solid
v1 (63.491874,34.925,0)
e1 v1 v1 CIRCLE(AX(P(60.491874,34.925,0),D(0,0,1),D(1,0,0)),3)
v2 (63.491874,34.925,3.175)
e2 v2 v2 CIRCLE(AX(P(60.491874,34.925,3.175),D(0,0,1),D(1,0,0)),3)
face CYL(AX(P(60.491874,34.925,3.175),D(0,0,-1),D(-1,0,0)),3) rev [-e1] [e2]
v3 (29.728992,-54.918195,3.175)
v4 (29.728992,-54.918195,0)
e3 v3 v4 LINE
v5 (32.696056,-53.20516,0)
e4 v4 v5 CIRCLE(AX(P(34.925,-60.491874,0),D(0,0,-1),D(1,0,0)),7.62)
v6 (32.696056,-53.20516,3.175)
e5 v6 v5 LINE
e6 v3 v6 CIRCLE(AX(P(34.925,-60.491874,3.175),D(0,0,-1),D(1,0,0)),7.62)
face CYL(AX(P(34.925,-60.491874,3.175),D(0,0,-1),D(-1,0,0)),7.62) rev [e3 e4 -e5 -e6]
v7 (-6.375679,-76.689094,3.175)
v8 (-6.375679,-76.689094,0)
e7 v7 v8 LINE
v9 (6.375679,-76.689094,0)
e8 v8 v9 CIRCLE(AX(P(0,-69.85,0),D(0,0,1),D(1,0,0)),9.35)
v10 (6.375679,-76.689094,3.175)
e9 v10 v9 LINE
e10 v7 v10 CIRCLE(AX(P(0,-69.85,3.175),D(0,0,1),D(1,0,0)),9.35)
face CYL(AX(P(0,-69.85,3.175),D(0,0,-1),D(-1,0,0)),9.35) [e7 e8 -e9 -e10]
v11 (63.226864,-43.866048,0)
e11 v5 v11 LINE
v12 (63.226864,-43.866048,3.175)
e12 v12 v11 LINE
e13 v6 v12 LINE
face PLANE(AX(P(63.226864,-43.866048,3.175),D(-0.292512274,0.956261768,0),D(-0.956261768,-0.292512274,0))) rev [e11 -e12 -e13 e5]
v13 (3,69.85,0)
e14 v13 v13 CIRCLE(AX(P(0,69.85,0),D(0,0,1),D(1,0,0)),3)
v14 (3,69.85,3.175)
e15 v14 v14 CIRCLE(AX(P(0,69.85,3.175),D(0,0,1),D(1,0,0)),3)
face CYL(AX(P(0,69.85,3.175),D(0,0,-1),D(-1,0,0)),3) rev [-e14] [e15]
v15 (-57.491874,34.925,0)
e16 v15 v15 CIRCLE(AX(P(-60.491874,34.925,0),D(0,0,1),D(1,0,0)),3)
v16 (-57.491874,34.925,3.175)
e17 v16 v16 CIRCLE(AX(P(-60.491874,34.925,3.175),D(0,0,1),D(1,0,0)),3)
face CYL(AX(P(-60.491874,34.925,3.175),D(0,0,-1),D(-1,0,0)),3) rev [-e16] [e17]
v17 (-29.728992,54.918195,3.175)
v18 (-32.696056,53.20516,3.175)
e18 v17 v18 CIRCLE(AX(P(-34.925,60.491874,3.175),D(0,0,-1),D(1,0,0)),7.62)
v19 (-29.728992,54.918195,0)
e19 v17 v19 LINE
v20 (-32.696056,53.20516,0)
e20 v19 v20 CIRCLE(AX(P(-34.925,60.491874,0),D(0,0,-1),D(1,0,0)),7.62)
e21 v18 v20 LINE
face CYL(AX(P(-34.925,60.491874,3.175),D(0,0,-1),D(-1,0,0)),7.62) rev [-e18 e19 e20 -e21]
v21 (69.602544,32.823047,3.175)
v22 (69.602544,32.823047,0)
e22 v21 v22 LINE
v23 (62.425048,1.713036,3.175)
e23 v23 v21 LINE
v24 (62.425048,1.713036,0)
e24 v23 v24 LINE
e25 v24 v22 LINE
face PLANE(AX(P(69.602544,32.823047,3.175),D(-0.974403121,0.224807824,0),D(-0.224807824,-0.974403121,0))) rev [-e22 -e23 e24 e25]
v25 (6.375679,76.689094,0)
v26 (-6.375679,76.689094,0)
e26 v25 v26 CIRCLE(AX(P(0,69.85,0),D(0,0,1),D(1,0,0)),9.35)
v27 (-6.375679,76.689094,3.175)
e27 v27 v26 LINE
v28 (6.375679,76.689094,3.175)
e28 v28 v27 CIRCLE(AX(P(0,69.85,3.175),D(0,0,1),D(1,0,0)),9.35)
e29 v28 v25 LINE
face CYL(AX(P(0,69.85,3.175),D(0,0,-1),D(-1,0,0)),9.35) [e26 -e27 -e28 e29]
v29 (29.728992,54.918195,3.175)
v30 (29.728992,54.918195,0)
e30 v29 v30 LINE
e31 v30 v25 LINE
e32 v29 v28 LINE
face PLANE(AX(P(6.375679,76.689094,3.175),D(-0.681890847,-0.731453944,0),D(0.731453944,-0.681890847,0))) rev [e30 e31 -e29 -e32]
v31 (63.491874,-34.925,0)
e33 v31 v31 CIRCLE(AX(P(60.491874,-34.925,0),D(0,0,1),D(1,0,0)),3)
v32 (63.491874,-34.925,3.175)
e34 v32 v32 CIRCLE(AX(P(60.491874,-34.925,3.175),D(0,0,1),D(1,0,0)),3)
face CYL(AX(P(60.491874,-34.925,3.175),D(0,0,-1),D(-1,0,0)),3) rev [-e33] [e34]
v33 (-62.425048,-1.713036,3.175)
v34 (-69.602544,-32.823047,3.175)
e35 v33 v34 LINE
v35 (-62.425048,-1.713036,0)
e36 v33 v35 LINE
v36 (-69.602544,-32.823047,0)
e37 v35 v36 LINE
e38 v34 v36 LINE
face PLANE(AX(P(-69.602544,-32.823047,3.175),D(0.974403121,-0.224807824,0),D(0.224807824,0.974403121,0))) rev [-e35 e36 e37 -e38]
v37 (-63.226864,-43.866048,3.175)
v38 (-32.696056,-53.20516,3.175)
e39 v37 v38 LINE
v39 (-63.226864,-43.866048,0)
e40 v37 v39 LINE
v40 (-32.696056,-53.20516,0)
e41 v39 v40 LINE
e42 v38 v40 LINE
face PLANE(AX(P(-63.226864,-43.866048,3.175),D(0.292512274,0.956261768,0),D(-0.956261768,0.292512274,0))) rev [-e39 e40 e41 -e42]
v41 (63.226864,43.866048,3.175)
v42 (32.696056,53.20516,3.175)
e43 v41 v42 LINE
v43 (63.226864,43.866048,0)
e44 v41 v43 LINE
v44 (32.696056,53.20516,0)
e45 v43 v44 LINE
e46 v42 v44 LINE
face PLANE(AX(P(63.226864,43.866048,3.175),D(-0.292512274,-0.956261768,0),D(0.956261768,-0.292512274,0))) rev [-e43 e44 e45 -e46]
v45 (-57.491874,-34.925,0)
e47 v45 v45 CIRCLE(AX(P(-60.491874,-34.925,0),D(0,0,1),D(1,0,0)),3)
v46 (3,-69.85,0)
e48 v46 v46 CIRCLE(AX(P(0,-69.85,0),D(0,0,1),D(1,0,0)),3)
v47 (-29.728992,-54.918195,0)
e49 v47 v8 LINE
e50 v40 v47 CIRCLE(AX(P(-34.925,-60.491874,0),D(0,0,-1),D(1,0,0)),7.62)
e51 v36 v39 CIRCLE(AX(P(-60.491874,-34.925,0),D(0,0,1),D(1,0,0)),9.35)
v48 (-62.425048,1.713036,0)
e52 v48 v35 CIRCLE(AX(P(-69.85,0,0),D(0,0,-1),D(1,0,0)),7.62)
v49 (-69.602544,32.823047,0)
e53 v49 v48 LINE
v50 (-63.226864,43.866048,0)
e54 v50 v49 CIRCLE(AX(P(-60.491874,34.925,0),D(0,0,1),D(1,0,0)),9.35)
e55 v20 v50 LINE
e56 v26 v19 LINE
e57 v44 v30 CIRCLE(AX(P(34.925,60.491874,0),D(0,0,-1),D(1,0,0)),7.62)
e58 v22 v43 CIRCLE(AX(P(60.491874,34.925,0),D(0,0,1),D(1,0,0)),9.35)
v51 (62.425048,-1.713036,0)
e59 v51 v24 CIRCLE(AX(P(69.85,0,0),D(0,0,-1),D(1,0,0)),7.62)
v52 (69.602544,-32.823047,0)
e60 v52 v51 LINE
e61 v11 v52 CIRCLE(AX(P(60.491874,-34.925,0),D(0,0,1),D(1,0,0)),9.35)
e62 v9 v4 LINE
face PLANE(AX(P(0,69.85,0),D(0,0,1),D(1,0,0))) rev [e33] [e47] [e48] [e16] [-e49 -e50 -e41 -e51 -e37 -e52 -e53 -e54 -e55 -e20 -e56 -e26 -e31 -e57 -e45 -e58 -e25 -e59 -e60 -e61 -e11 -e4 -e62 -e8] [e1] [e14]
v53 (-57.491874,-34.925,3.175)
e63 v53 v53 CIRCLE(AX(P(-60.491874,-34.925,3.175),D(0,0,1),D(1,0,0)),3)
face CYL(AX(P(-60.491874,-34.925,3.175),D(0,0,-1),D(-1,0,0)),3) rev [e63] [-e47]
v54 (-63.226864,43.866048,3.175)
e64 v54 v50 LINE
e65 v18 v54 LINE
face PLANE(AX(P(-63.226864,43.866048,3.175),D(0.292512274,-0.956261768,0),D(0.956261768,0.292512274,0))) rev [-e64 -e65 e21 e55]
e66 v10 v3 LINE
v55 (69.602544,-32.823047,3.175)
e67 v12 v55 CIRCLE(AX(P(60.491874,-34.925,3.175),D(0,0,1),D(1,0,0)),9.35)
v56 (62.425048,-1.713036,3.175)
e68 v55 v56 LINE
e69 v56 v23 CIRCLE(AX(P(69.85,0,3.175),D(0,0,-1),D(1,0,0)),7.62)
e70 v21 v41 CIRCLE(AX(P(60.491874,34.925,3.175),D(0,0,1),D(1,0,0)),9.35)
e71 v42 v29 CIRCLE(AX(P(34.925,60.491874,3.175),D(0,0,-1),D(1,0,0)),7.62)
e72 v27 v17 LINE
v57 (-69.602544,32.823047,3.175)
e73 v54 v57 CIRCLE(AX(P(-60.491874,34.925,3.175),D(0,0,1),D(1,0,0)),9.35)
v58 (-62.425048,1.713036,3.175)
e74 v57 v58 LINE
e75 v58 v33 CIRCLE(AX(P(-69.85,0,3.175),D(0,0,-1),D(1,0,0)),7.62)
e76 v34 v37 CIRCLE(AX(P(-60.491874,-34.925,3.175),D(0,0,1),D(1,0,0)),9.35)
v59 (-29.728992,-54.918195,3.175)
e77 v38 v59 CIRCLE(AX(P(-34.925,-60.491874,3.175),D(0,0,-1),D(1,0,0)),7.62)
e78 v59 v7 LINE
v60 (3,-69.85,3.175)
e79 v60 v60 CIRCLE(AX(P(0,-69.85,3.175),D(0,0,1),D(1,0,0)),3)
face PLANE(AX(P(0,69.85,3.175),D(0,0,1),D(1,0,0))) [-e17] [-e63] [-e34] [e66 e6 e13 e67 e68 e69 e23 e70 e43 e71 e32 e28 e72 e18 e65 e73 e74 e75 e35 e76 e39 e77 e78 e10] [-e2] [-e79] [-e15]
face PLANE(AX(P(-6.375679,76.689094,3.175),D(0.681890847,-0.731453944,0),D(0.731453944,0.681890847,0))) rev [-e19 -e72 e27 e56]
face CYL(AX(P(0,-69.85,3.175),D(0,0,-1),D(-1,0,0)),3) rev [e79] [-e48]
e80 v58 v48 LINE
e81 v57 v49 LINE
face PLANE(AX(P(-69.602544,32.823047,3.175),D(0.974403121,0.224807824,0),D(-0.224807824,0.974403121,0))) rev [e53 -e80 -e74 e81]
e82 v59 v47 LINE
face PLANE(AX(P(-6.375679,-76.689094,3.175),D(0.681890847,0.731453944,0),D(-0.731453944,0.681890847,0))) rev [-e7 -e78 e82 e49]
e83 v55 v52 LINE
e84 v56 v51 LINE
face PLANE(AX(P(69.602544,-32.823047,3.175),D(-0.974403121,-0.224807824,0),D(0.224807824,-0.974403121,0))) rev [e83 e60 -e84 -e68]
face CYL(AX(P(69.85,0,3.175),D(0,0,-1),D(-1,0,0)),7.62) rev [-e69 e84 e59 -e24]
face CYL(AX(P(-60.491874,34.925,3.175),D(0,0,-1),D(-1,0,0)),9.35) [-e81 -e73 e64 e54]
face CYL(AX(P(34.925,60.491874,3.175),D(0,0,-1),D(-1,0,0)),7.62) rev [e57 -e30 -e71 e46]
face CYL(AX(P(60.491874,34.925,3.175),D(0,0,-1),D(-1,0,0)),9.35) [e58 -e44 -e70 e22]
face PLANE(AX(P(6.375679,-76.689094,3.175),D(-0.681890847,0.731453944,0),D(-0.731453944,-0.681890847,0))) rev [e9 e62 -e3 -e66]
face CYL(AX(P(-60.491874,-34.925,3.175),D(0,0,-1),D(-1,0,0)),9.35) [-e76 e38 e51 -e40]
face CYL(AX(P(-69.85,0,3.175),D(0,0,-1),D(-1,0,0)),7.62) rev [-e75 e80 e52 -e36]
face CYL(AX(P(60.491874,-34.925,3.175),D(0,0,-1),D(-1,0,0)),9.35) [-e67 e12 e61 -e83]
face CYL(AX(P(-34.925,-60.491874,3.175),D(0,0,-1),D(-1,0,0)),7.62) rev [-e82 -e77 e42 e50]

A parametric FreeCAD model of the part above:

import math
import FreeCAD as App
import Part
import Sketcher
from FreeCAD import Vector
Q = App.Units.Quantity

doc = App.newDocument("Part")
params = doc.addObject("Spreadsheet::Sheet", "Params")
for row, (alias, value) in enumerate([
    ("sketch1_diameter", "6 mm"),
    ("sketch1_radius", "9.35 mm"),
    ("sketch1_radius2", "7.62 mm"),
    ("pad1_length", "3.175 mm"),
], start=1):
    params.set(f"A{row}", alias)
    params.set(f"B{row}", "=" + value)
    params.setAlias(f"B{row}", alias)

body = doc.addObject("PartDesign::Body", "Body")

# Sketch on XY plane
sketch1 = doc.addObject("Sketcher::SketchObject", "Sketch")
body.addObject(sketch1)
sketch1.AttachmentSupport = (doc.XY_Plane, [""])
sketch1.MapMode = "FlatFace"
sketch1.addGeometry(Part.LineSegment(Vector(29.7, 54.9, 0), Vector(6.4, 76.7, 0)), False)
sketch1.addGeometry(Part.ArcOfCircle(Part.Circle(Vector(0, 69.8, 0), Vector(0, 0, 1), 9.4), math.radians(47), math.radians(133)), False)
sketch1.addGeometry(Part.LineSegment(Vector(-6.4, 76.7, 0), Vector(-29.7, 54.9, 0)), False)
sketch1.addGeometry(Part.ArcOfCircle(Part.Circle(Vector(-34.9, 60.5, 0), Vector(0, 0, 1), 7.6), math.radians(-73), math.radians(-47)), False)
sketch1.addGeometry(Part.LineSegment(Vector(-32.7, 53.2, 0), Vector(-63.2, 43.9, 0)), False)
sketch1.addGeometry(Part.ArcOfCircle(Part.Circle(Vector(-60.5, 34.9, 0), Vector(0, 0, 1), 9.3), math.radians(107), math.radians(193)), False)
sketch1.addGeometry(Part.LineSegment(Vector(-69.6, 32.8, 0), Vector(-62.4, 1.7, 0)), False)
sketch1.addGeometry(Part.ArcOfCircle(Part.Circle(Vector(-69.9, 0, 0), Vector(0, 0, 1), 7.6), math.radians(-13), math.radians(13)), False)
sketch1.addGeometry(Part.LineSegment(Vector(-62.4, -1.7, 0), Vector(-69.6, -32.8, 0)), False)
sketch1.addGeometry(Part.ArcOfCircle(Part.Circle(Vector(-60.5, -34.9, 0), Vector(0, 0, 1), 9.3), math.radians(167), math.radians(253)), False)
sketch1.addGeometry(Part.LineSegment(Vector(-63.2, -43.9, 0), Vector(-32.7, -53.2, 0)), False)
sketch1.addGeometry(Part.ArcOfCircle(Part.Circle(Vector(-34.9, -60.5, 0), Vector(0, 0, 1), 7.6), math.radians(47), math.radians(73)), False)
sketch1.addGeometry(Part.LineSegment(Vector(-29.7, -54.9, 0), Vector(-6.4, -76.7, 0)), False)
sketch1.addGeometry(Part.ArcOfCircle(Part.Circle(Vector(0, -69.8, 0), Vector(0, 0, 1), 9.4), math.radians(-133), math.radians(-47)), False)
sketch1.addGeometry(Part.LineSegment(Vector(6.4, -76.7, 0), Vector(29.7, -54.9, 0)), False)
sketch1.addGeometry(Part.ArcOfCircle(Part.Circle(Vector(34.9, -60.5, 0), Vector(0, 0, 1), 7.6), math.radians(107), math.radians(133)), False)
sketch1.addGeometry(Part.LineSegment(Vector(32.7, -53.2, 0), Vector(63.2, -43.9, 0)), False)
sketch1.addGeometry(Part.ArcOfCircle(Part.Circle(Vector(60.5, -34.9, 0), Vector(0, 0, 1), 9.3), math.radians(-73), math.radians(13)), False)
sketch1.addGeometry(Part.LineSegment(Vector(69.6, -32.8, 0), Vector(62.4, -1.7, 0)), False)
sketch1.addGeometry(Part.ArcOfCircle(Part.Circle(Vector(69.9, 0, 0), Vector(0, 0, 1), 7.6), math.radians(167), math.radians(193)), False)
sketch1.addGeometry(Part.LineSegment(Vector(62.4, 1.7, 0), Vector(69.6, 32.8, 0)), False)
sketch1.addGeometry(Part.ArcOfCircle(Part.Circle(Vector(60.5, 34.9, 0), Vector(0, 0, 1), 9.3), math.radians(-13), math.radians(73)), False)
sketch1.addGeometry(Part.LineSegment(Vector(63.2, 43.9, 0), Vector(32.7, 53.2, 0)), False)
sketch1.addGeometry(Part.ArcOfCircle(Part.Circle(Vector(34.9, 60.5, 0), Vector(0, 0, 1), 7.6), math.radians(-133), math.radians(-107)), False)
sketch1.addGeometry(Part.Circle(Vector(60.5, -34.9, 0), Vector(0, 0, 1), 3), False)
sketch1.addGeometry(Part.Circle(Vector(0, -69.8, 0), Vector(0, 0, 1), 3), False)
sketch1.addGeometry(Part.Circle(Vector(-60.5, -34.9, 0), Vector(0, 0, 1), 3), False)
sketch1.addGeometry(Part.Circle(Vector(60.5, 34.9, 0), Vector(0, 0, 1), 3), False)
sketch1.addGeometry(Part.Circle(Vector(-60.5, 34.9, 0), Vector(0, 0, 1), 3), False)
sketch1.addGeometry(Part.Circle(Vector(0, 69.8, 0), Vector(0, 0, 1), 3), False)
sketch1.addConstraint(Sketcher.Constraint("Tangent", 0, 2, 1, 1))
sketch1.addConstraint(Sketcher.Constraint("Tangent", 1, 2, 2, 1))
sketch1.addConstraint(Sketcher.Constraint("Tangent", 2, 2, 3, 2))
sketch1.addConstraint(Sketcher.Constraint("Tangent", 3, 1, 4, 1))
sketch1.addConstraint(Sketcher.Constraint("Tangent", 4, 2, 5, 1))
sketch1.addConstraint(Sketcher.Constraint("Tangent", 5, 2, 6, 1))
sketch1.addConstraint(Sketcher.Constraint("Tangent", 6, 2, 7, 2))
sketch1.addConstraint(Sketcher.Constraint("Tangent", 7, 1, 8, 1))
sketch1.addConstraint(Sketcher.Constraint("Tangent", 8, 2, 9, 1))
sketch1.addConstraint(Sketcher.Constraint("Tangent", 9, 2, 10, 1))
sketch1.addConstraint(Sketcher.Constraint("Tangent", 10, 2, 11, 2))
sketch1.addConstraint(Sketcher.Constraint("Tangent", 11, 1, 12, 1))
sketch1.addConstraint(Sketcher.Constraint("Tangent", 12, 2, 13, 1))
sketch1.addConstraint(Sketcher.Constraint("Tangent", 13, 2, 14, 1))
sketch1.addConstraint(Sketcher.Constraint("Tangent", 14, 2, 15, 2))
sketch1.addConstraint(Sketcher.Constraint("Tangent", 15, 1, 16, 1))
sketch1.addConstraint(Sketcher.Constraint("Tangent", 16, 2, 17, 1))
sketch1.addConstraint(Sketcher.Constraint("Tangent", 17, 2, 18, 1))
sketch1.addConstraint(Sketcher.Constraint("Tangent", 18, 2, 19, 2))
sketch1.addConstraint(Sketcher.Constraint("Tangent", 19, 1, 20, 1))
sketch1.addConstraint(Sketcher.Constraint("Tangent", 20, 2, 21, 1))
sketch1.addConstraint(Sketcher.Constraint("Tangent", 21, 2, 22, 1))
sketch1.addConstraint(Sketcher.Constraint("Tangent", 22, 2, 23, 2))
sketch1.addConstraint(Sketcher.Constraint("Tangent", 23, 1, 0, 1))
sketch1.addConstraint(Sketcher.Constraint("Coincident", 24, 3, 17, 3))
sketch1.addConstraint(Sketcher.Constraint("Coincident", 25, 3, 13, 3))
sketch1.addConstraint(Sketcher.Constraint("Coincident", 26, 3, 9, 3))
sketch1.addConstraint(Sketcher.Constraint("Coincident", 27, 3, 21, 3))
sketch1.addConstraint(Sketcher.Constraint("Coincident", 28, 3, 5, 3))
sketch1.addConstraint(Sketcher.Constraint("Coincident", 29, 3, 1, 3))
sketch1.addConstraint(Sketcher.Constraint("Equal", 1, 5))
sketch1.addConstraint(Sketcher.Constraint("Equal", 3, 7))
sketch1.addConstraint(Sketcher.Constraint("Equal", 5, 9))
sketch1.addConstraint(Sketcher.Constraint("Equal", 7, 11))
sketch1.addConstraint(Sketcher.Constraint("Equal", 9, 13))
sketch1.addConstraint(Sketcher.Constraint("Equal", 11, 15))
sketch1.addConstraint(Sketcher.Constraint("Equal", 13, 17))
sketch1.addConstraint(Sketcher.Constraint("Equal", 15, 19))
sketch1.addConstraint(Sketcher.Constraint("Equal", 17, 21))
sketch1.addConstraint(Sketcher.Constraint("Equal", 19, 23))
sketch1.addConstraint(Sketcher.Constraint("Equal", 24, 25))
sketch1.addConstraint(Sketcher.Constraint("Equal", 25, 26))
sketch1.addConstraint(Sketcher.Constraint("Equal", 26, 27))
sketch1.addConstraint(Sketcher.Constraint("Equal", 27, 28))
sketch1.addConstraint(Sketcher.Constraint("Equal", 28, 29))
sketch1.addConstraint(Sketcher.Constraint("Symmetric", 1, 3, 13, 3, -1, 1))
sketch1.addConstraint(Sketcher.Constraint("Symmetric", 3, 3, 15, 3, -1, 1))
sketch1.addConstraint(Sketcher.Constraint("Symmetric", 5, 3, 17, 3, -1, 1))
sketch1.addConstraint(Sketcher.Constraint("Symmetric", 7, 3, 19, 3, -1, 1))
sketch1.addConstraint(Sketcher.Constraint("Symmetric", 9, 3, 21, 3, -1, 1))
sketch1.addConstraint(Sketcher.Constraint("Symmetric", 11, 3, 23, 3, -1, 1))
sketch1.addConstraint(Sketcher.Constraint("Symmetric", 11, 3, 15, 3, -2))
sketch1.addConstraint(Sketcher.Constraint("Symmetric", 9, 3, 17, 3, -2))
sketch1.addConstraint(Sketcher.Constraint("PointOnObject", 1, 3, -2))
sketch1.addConstraint(Sketcher.Constraint("PointOnObject", 7, 3, -1))
sketch1.addConstraint(Sketcher.Constraint("Equal", 2, 4))
sketch1.addConstraint(Sketcher.Constraint("Equal", 4, 6))
sketch1.addConstraint(Sketcher.Constraint("Diameter", 24, Q("6 mm")))
sketch1.addConstraint(Sketcher.Constraint("Radius", 1, Q("9.35 mm")))
sketch1.addConstraint(Sketcher.Constraint("Radius", 3, Q("7.62 mm")))
sketch1.addConstraint(Sketcher.Constraint("DistanceY", -1, 1, 1, 3, Q("69.85 mm")))
sketch1.addConstraint(Sketcher.Constraint("DistanceX", 7, 3, -1, 1, Q("69.85 mm")))
sketch1.addConstraint(Sketcher.Constraint("DistanceY", 9, 3, 5, 3, Q("69.85 mm")))
sketch1.addConstraint(Sketcher.Constraint("DistanceX", 11, 3, 15, 3, Q("69.85 mm")))
sketch1.setExpression("Constraints[57]", "Params.sketch1_diameter")
sketch1.setExpression("Constraints[58]", "Params.sketch1_radius")
sketch1.setExpression("Constraints[59]", "Params.sketch1_radius2")
pad1 = doc.addObject("PartDesign::Pad", "Pad")
body.addObject(pad1)
pad1.Profile = sketch1
pad1.setExpression("Length", "Params.pad1_length")

doc.recompute()
